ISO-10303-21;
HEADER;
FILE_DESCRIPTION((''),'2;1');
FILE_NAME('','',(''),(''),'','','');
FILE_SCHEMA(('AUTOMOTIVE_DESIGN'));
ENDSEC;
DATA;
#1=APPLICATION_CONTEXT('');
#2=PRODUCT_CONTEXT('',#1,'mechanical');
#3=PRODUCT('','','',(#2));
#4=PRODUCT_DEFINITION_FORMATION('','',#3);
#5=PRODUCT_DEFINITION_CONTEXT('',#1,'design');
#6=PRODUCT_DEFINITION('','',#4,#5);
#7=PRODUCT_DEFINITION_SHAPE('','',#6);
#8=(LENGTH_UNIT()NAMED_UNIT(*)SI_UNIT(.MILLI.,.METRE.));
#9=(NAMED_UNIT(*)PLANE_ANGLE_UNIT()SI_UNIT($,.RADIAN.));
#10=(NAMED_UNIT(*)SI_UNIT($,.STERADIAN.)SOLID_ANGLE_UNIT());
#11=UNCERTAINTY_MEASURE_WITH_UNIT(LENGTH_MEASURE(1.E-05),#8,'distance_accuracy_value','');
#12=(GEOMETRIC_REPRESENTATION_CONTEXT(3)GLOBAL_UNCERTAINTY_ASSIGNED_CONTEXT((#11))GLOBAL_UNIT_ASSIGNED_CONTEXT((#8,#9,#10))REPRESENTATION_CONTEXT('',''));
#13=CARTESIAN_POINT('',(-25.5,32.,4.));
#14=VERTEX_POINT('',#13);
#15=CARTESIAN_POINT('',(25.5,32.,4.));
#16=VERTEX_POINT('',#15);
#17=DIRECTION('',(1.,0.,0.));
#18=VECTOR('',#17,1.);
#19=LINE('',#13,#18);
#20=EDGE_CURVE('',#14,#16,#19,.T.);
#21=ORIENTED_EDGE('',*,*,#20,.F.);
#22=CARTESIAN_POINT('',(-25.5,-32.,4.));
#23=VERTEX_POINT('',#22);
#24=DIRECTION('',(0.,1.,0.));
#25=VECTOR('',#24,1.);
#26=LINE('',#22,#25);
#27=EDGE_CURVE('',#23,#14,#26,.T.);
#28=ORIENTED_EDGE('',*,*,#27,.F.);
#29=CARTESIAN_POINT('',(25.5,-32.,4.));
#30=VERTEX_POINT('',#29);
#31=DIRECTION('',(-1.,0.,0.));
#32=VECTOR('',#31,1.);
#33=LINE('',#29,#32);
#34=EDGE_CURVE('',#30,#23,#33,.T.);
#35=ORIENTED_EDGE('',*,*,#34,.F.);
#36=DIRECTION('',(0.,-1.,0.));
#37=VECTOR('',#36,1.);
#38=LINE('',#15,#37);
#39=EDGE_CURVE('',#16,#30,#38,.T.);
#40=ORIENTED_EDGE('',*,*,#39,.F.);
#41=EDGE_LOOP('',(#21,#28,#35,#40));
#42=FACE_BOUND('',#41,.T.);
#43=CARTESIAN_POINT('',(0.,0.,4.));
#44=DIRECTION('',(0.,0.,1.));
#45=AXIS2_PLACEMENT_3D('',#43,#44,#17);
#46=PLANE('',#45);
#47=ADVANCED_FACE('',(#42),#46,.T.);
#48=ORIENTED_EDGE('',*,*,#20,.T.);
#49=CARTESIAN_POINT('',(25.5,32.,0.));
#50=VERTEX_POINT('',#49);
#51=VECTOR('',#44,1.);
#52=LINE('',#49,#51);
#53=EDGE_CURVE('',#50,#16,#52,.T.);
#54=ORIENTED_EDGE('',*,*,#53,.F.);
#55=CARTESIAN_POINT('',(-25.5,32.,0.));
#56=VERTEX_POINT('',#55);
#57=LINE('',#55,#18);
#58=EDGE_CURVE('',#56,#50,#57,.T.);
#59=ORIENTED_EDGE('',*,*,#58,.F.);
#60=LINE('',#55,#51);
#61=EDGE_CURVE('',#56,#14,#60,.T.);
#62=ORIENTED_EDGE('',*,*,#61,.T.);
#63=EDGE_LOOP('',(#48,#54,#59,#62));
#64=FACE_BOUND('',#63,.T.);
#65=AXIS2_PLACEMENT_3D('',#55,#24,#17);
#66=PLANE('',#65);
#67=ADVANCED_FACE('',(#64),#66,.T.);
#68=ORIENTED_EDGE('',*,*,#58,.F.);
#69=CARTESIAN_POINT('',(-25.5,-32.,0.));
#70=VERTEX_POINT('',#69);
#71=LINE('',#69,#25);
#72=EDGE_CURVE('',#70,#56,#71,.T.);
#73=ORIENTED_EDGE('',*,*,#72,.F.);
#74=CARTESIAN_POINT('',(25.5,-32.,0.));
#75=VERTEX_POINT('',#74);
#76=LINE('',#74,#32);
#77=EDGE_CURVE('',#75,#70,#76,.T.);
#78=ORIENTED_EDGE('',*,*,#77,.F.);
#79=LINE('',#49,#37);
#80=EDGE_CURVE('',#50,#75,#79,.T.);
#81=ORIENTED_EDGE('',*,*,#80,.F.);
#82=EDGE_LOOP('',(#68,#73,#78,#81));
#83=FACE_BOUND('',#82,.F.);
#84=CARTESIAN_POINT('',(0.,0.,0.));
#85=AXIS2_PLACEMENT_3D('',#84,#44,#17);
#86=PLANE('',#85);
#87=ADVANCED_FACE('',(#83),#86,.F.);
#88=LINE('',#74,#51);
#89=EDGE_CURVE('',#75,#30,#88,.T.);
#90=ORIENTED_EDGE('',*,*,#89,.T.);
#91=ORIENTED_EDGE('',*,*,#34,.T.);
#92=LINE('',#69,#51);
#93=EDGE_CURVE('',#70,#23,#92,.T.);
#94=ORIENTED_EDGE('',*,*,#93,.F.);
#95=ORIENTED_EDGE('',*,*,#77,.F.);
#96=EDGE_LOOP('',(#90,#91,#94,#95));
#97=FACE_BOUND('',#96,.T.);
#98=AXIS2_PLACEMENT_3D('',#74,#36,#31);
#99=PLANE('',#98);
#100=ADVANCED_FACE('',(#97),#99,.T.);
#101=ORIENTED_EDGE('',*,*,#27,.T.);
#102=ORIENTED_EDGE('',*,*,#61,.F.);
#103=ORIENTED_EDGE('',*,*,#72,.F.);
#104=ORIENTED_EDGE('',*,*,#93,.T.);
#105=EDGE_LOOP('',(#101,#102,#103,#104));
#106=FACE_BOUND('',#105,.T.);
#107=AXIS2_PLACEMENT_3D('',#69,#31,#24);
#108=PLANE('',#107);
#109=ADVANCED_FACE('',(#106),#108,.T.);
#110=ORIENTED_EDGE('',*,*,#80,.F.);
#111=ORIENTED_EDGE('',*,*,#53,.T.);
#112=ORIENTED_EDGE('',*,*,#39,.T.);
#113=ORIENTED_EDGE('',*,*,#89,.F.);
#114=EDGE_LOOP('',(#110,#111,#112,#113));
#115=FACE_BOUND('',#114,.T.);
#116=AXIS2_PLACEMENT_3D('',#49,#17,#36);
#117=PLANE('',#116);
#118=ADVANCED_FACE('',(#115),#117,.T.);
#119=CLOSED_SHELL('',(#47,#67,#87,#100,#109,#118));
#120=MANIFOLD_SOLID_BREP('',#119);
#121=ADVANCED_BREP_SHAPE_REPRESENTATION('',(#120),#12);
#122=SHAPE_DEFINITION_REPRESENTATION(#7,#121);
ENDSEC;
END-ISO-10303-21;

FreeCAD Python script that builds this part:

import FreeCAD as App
import Part
import Sketcher
from FreeCAD import Vector
Q = App.Units.Quantity

doc = App.newDocument("Part")
params = doc.addObject("Spreadsheet::Sheet", "Params")
for row, (alias, value) in enumerate([
    ("sketch1_width", "51 mm"),
    ("sketch1_height", "64 mm"),
    ("pad1_length", "4 mm"),
], start=1):
    params.set(f"A{row}", alias)
    params.set(f"B{row}", "=" + value)
    params.setAlias(f"B{row}", alias)

body = doc.addObject("PartDesign::Body", "Body")

sketch1 = doc.addObject("Sketcher::SketchObject", "Sketch")
body.addObject(sketch1)
sketch1.AttachmentSupport = (doc.XY_Plane, [""])
sketch1.MapMode = "FlatFace"
sketch1.addGeometry(Part.LineSegment(Vector(26, 32, 0), Vector(-26, 32, 0)), False)
sketch1.addGeometry(Part.LineSegment(Vector(-26, 32, 0), Vector(-26, -32, 0)), False)
sketch1.addGeometry(Part.LineSegment(Vector(-26, -32, 0), Vector(26, -32, 0)), False)
sketch1.addGeometry(Part.LineSegment(Vector(26, -32, 0), Vector(26, 32, 0)), False)
sketch1.addConstraint(Sketcher.Constraint("Coincident", 0, 2, 1, 1))
sketch1.addConstraint(Sketcher.Constraint("Coincident", 1, 2, 2, 1))
sketch1.addConstraint(Sketcher.Constraint("Coincident", 2, 2, 3, 1))
sketch1.addConstraint(Sketcher.Constraint("Coincident", 3, 2, 0, 1))
sketch1.addConstraint(Sketcher.Constraint("Horizontal", 0))
sketch1.addConstraint(Sketcher.Constraint("Vertical", 1))
sketch1.addConstraint(Sketcher.Constraint("Horizontal", 2))
sketch1.addConstraint(Sketcher.Constraint("Vertical", 3))
sketch1.addConstraint(Sketcher.Constraint("Symmetric", 0, 2, 2, 2, -1, 1))
sketch1.addConstraint(Sketcher.Constraint("DistanceX", 0, 2, 0, 1, Q("51 mm")))
sketch1.addConstraint(Sketcher.Constraint("DistanceY", 1, 2, 1, 1, Q("64 mm")))
sketch1.setExpression("Constraints[9]", "Params.sketch1_width")
sketch1.setExpression("Constraints[10]", "Params.sketch1_height")
pad1 = doc.addObject("PartDesign::Pad", "Pad")
body.addObject(pad1)
pad1.Profile = sketch1
pad1.setExpression("Length", "Params.pad1_length")

doc.recompute()
